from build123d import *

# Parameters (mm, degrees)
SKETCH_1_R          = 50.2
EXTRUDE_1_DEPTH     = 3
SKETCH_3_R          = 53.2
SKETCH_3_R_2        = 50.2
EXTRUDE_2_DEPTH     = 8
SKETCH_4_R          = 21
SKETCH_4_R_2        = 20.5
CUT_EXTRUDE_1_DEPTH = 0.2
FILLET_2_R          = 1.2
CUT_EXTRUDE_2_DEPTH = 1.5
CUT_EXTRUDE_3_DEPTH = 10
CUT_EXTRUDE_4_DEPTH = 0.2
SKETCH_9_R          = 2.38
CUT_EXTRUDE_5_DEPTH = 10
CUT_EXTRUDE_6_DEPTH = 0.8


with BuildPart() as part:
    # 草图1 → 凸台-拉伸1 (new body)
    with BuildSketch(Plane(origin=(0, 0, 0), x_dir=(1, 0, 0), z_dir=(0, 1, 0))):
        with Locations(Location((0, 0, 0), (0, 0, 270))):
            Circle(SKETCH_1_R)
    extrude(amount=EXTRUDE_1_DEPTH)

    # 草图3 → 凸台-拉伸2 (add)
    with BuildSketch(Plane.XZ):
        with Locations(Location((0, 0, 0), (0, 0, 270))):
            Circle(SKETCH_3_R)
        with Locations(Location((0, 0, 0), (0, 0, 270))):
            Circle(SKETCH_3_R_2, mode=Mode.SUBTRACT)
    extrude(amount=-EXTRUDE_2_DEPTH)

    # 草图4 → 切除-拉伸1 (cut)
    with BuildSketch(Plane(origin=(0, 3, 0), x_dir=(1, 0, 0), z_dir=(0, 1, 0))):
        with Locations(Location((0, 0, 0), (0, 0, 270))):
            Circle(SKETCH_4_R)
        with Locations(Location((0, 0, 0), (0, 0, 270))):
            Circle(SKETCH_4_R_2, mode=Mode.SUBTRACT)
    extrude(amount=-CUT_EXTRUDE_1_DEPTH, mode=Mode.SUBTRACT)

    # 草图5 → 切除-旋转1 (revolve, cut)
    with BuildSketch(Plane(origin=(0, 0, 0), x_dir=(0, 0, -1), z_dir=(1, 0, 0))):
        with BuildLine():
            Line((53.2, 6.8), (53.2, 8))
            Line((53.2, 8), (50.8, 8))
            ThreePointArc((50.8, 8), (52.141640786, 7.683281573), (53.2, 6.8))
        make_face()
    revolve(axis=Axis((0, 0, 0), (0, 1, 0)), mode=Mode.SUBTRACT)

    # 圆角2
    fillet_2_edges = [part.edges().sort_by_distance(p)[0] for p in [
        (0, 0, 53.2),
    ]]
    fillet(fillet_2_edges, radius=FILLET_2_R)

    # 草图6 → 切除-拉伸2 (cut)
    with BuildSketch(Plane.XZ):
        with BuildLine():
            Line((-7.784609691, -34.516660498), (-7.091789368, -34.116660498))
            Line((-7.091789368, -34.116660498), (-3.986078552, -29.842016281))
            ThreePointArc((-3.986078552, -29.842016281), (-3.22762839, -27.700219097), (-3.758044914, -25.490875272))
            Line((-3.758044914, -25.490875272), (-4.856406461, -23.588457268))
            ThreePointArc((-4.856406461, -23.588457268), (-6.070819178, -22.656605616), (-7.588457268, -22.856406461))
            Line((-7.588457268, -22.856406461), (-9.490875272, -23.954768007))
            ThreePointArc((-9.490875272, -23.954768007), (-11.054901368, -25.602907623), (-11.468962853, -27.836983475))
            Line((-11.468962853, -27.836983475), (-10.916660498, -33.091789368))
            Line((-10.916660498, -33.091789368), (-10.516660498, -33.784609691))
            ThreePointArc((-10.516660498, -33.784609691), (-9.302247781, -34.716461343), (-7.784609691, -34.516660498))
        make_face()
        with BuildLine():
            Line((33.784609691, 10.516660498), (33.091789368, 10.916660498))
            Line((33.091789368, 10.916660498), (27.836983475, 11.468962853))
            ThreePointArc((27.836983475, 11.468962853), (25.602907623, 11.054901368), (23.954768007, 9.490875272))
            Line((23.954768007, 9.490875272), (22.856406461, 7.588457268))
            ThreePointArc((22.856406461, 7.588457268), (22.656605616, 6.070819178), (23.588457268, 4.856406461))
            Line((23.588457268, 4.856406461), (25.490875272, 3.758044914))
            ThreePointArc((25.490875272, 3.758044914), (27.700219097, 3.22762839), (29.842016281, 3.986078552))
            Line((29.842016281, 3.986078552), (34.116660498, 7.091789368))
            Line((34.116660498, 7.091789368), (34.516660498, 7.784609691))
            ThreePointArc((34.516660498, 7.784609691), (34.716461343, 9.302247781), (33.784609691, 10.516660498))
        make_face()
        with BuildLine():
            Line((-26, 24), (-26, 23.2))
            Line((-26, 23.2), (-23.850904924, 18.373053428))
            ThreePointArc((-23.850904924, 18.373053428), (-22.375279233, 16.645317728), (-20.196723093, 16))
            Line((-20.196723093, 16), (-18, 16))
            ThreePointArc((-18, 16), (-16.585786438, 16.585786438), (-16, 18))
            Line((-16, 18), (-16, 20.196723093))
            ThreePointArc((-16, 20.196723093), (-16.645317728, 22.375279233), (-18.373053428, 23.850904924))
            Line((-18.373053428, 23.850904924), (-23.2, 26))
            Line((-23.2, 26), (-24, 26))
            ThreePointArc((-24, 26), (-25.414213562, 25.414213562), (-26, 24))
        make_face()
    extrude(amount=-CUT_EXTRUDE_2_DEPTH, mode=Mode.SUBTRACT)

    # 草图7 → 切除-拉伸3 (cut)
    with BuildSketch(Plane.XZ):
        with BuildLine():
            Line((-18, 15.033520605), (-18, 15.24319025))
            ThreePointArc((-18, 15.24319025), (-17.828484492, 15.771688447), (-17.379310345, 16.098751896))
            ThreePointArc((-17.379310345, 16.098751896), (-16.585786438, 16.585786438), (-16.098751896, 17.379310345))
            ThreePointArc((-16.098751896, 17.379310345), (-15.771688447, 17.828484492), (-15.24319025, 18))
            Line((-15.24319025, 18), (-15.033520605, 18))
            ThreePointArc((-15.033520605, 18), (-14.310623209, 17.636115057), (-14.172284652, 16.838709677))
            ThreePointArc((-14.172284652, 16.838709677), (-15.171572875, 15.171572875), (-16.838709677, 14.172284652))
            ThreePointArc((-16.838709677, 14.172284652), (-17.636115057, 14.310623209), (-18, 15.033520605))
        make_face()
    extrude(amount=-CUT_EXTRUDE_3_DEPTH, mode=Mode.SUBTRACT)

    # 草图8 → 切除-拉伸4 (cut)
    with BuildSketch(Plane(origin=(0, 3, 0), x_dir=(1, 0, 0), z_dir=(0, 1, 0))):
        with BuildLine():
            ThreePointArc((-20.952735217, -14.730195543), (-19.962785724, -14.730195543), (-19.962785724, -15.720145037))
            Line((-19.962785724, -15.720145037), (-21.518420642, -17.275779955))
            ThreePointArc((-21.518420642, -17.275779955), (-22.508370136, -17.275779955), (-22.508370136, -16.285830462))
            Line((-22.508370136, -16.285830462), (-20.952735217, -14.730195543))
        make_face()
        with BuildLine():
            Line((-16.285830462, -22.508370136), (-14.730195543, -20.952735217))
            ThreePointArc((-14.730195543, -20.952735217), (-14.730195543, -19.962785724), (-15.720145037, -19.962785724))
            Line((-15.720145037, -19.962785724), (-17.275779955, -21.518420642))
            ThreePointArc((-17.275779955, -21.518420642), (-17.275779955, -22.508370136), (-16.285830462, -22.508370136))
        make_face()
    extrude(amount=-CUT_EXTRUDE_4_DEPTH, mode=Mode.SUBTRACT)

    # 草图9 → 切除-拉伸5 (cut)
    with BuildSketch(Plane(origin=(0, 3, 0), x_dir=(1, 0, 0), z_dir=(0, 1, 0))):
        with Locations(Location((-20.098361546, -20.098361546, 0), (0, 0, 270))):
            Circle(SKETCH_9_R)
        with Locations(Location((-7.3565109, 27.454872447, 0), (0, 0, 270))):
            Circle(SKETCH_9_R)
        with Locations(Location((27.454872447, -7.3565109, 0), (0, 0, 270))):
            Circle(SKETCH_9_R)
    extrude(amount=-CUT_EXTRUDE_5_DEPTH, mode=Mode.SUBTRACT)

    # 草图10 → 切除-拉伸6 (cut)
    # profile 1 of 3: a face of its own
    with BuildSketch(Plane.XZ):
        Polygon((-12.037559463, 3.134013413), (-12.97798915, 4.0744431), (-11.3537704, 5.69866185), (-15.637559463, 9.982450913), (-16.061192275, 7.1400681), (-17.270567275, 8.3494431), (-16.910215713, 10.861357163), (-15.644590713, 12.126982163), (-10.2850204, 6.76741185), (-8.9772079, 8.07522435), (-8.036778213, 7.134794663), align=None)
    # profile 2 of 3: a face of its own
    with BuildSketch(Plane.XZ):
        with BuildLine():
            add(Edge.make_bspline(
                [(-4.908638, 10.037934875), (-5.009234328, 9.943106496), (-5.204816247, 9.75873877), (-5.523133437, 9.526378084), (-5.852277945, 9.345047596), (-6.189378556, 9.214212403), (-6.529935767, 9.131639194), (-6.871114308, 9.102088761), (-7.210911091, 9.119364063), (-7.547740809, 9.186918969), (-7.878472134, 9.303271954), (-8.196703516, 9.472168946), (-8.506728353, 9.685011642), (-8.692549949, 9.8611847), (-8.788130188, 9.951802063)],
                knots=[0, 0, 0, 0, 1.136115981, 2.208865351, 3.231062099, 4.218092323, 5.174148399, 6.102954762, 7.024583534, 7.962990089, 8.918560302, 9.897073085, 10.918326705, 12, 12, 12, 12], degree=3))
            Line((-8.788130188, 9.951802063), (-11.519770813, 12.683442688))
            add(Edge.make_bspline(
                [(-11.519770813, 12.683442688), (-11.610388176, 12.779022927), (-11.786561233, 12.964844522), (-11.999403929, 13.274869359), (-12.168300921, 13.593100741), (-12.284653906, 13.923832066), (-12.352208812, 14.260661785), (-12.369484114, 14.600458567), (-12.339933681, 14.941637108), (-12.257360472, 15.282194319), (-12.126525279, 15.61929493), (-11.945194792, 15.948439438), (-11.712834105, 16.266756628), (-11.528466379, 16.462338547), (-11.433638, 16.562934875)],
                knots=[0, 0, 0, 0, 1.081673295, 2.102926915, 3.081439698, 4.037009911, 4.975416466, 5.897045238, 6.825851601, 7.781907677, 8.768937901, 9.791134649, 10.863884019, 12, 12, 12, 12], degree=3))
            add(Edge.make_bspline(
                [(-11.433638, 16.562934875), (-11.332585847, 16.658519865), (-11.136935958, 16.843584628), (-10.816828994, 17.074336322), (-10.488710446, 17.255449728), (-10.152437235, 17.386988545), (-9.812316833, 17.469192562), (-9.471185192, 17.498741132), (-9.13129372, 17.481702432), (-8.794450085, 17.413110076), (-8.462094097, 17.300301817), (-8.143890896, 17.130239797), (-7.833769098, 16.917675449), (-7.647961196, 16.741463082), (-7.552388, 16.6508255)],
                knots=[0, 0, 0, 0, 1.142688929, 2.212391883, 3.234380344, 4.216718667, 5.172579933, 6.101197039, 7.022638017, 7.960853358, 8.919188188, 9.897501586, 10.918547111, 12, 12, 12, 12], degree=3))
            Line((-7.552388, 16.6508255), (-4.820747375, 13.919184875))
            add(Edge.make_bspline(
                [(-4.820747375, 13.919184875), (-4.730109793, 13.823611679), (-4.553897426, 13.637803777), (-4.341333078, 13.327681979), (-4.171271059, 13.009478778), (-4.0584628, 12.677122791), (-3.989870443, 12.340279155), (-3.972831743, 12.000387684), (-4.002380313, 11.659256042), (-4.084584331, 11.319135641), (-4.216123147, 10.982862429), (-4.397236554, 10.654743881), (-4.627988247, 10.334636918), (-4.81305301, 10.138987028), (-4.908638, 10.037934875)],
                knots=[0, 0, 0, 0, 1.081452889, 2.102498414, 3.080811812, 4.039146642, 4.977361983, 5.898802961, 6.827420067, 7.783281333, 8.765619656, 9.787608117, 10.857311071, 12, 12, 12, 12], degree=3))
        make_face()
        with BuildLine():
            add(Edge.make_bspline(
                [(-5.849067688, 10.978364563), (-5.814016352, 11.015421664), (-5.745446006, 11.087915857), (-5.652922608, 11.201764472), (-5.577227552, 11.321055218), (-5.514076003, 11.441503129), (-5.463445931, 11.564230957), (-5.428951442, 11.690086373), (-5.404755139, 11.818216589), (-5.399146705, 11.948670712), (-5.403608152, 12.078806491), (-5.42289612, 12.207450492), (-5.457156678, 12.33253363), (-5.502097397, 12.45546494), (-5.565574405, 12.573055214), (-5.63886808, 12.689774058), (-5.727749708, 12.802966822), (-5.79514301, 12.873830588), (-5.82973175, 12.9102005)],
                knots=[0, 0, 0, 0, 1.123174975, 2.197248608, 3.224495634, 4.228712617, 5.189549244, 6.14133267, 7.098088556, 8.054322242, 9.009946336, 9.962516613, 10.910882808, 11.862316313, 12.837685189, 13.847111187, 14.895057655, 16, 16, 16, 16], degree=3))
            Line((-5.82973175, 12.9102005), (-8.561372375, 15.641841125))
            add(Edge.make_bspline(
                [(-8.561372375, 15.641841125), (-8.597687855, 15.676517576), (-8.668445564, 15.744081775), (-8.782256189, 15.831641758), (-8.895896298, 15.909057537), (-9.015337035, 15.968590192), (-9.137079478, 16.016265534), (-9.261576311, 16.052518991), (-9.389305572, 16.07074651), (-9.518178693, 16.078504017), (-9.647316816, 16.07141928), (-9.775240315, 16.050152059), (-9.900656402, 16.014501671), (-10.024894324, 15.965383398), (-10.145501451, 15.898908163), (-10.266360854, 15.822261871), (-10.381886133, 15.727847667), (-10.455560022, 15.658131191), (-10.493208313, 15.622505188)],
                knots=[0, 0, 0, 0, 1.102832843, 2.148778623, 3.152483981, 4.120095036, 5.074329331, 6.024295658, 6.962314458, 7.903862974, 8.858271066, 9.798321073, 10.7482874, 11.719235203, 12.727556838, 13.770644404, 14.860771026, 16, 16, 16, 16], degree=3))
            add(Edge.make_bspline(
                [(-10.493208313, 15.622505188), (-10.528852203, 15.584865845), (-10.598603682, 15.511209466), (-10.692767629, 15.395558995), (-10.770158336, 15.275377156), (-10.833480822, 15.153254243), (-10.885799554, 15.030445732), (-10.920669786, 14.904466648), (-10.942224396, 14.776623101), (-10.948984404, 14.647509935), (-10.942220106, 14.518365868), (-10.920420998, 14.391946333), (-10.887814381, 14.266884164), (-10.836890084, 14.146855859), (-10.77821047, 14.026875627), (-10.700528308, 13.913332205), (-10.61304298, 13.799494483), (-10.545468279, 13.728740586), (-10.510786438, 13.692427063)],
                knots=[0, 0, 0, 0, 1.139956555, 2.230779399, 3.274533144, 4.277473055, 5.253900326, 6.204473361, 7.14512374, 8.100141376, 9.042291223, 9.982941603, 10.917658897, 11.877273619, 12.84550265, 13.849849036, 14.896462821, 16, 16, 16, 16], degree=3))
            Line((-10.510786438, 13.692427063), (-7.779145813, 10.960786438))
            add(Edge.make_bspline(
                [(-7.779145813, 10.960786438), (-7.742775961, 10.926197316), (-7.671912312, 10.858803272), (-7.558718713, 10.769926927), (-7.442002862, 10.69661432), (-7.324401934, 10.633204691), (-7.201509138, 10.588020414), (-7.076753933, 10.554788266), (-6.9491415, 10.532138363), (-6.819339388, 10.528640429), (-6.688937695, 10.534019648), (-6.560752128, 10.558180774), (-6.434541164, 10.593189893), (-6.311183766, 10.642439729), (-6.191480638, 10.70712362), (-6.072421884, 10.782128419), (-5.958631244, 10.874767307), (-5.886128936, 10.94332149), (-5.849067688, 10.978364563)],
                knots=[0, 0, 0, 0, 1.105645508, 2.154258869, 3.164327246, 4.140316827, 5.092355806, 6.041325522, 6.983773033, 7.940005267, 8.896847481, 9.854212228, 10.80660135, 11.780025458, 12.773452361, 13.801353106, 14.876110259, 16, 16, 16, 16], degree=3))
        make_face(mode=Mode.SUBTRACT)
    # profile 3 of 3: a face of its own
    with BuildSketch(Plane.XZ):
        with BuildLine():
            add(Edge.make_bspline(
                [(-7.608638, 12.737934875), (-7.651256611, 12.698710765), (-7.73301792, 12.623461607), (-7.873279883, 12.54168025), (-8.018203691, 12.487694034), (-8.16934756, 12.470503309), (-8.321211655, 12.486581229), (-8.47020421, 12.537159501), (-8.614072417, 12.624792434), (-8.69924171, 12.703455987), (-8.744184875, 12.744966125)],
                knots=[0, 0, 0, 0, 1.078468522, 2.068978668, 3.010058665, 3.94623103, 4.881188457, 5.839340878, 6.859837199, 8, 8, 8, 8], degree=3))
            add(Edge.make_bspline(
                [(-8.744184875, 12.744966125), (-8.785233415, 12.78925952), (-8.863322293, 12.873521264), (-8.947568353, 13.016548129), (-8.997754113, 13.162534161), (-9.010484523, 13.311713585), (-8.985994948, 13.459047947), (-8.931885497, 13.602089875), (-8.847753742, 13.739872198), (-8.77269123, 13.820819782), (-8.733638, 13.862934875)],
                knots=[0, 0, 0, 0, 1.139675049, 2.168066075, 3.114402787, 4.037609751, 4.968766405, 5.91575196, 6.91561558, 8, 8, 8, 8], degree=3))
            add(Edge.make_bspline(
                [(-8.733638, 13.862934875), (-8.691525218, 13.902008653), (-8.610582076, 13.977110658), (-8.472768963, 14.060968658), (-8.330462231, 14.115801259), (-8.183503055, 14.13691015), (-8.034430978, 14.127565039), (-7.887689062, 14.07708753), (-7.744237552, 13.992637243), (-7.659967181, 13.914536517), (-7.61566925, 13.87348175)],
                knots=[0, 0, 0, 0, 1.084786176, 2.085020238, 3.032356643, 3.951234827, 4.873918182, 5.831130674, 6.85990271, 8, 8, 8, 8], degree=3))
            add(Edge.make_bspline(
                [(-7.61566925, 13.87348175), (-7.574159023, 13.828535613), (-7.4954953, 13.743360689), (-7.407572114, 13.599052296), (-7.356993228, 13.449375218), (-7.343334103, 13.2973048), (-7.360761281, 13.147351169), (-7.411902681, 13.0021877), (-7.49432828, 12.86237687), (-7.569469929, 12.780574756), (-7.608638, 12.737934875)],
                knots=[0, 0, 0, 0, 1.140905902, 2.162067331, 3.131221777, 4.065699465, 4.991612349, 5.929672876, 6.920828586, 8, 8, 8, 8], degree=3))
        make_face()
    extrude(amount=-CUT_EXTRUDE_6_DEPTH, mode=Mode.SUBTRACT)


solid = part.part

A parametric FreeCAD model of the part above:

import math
import FreeCAD as App
import Part
import Sketcher

V = App.Vector
Q = App.Units.Quantity


def edges_at(feature, points):
    """Names of the edges that pass closest to the given points."""
    edges = feature.Shape.Edges
    near = lambda p: min(range(len(edges)), key=lambda i: edges[i].distToShape(Part.Vertex(*p))[0])
    return sorted({f"Edge{near(p) + 1}" for p in points})


def add_polygon(sketch, points):
    """Adds a closed chain of lines whose ends are joined by coincident constraints."""
    first, n = sketch.GeometryCount, len(points)
    for a, b in zip(points, points[1:] + points[:1]):
        sketch.addGeometry(Part.LineSegment(App.Vector(*a, 0), App.Vector(*b, 0)), False)
    for i in range(n):
        sketch.addConstraint(Sketcher.Constraint("Coincident", first + i, 2, first + (i + 1) % n, 1))

doc = App.newDocument("Part")
body = doc.addObject("PartDesign::Body", "Body")

# Sketch on XZ plane
sketch1 = body.newObject("Sketcher::SketchObject", "Sketch")
sketch1.AttachmentSupport = (doc.getObject("XZ_Plane"), [""])
sketch1.MapMode = "FlatFace"
sketch1.addGeometry(Part.Circle(V(0, 0, 0), V(0, 0, 1), 50), False)
sketch1.addConstraint(Sketcher.Constraint("Coincident", 0, 3, -1, 1))
sketch1.addConstraint(Sketcher.Constraint("Diameter", 0, 100.4))
pad1 = body.newObject("PartDesign::Pad", "Pad")
pad1.Profile = sketch1
pad1.Length = 3
pad1.Reversed = True

# Sketch on XZ plane
sketch2 = body.newObject("Sketcher::SketchObject", "Sketch001")
sketch2.AttachmentSupport = (doc.getObject("XZ_Plane"), [""])
sketch2.MapMode = "FlatFace"
sketch2.addGeometry(Part.Circle(V(0, 0, 0), V(0, 0, 1), 53), False)
sketch2.addGeometry(Part.Circle(V(0, 0, 0), V(0, 0, 1), 50), False)
sketch2.addConstraint(Sketcher.Constraint("Coincident", 0, 3, -1, 1))
sketch2.addConstraint(Sketcher.Constraint("Coincident", 1, 3, -1, 1))
sketch2.addConstraint(Sketcher.Constraint("Diameter", 0, 106.4))
sketch2.addConstraint(Sketcher.Constraint("Diameter", 1, 100.4))
pad2 = body.newObject("PartDesign::Pad", "Pad001")
pad2.Profile = sketch2
pad2.Length = 8
pad2.Reversed = True

# Sketch on XZ plane
sketch3 = body.newObject("Sketcher::SketchObject", "Sketch002")
sketch3.AttachmentSupport = (doc.getObject("XZ_Plane"), [""])
sketch3.MapMode = "FlatFace"
sketch3.AttachmentOffset = App.Placement(V(0, 0, -3), App.Rotation())
sketch3.addGeometry(Part.Circle(V(0, 0, 0), V(0, 0, 1), 21), False)
sketch3.addGeometry(Part.Circle(V(0, 0, 0), V(0, 0, 1), 20), False)
sketch3.addConstraint(Sketcher.Constraint("Coincident", 0, 3, -1, 1))
sketch3.addConstraint(Sketcher.Constraint("Coincident", 1, 3, -1, 1))
sketch3.addConstraint(Sketcher.Constraint("Diameter", 0, 42.0))
sketch3.addConstraint(Sketcher.Constraint("Diameter", 1, 41.0))
pocket1 = body.newObject("PartDesign::Pocket", "Pocket")
pocket1.Profile = sketch3
pocket1.Length = 0.2
pocket1.Reversed = True

# Sketch on YZ plane
sketch4 = body.newObject("Sketcher::SketchObject", "Sketch003")
sketch4.AttachmentSupport = (doc.getObject("YZ_Plane"), [""])
sketch4.MapMode = "FlatFace"
sketch4.addGeometry(Part.LineSegment(V(6.8, -53.2, 0), V(8, -53.2, 0)), False)
sketch4.addGeometry(Part.LineSegment(V(8, -53.2, 0), V(8, -50.8, 0)), False)
sketch4.addGeometry(Part.ArcOfCircle(Part.Circle(V(5, -50.8, 0), V(0, 0, 1), 3), math.radians(-53), math.radians(0)), False)
sketch4.addConstraint(Sketcher.Constraint("Coincident", 0, 2, 1, 1))
sketch4.addConstraint(Sketcher.Constraint("Tangent", 1, 2, 2, 2))
sketch4.addConstraint(Sketcher.Constraint("Coincident", 2, 1, 0, 1))
sketch4.addConstraint(Sketcher.Constraint("Horizontal", 0))
sketch4.addConstraint(Sketcher.Constraint("Vertical", 1))
sketch4.addConstraint(Sketcher.Constraint("Radius", 2, 3.0))
sketch4.addConstraint(Sketcher.Constraint("DistanceX", 0, 1, 0, 2, 1.2))
sketch4.addConstraint(Sketcher.Constraint("DistanceX", -1, 1, 2, 3, 5.0))
sketch4.addConstraint(Sketcher.Constraint("DistanceY", 2, 3, -1, 1, 50.8))
groove = body.newObject("PartDesign::Groove", "Groove")
groove.Profile = sketch4
groove.ReferenceAxis = (sketch4, ["H_Axis"])
groove.Angle = 360
doc.recompute()

fillet = body.newObject("PartDesign::Fillet", "Fillet")
fillet.Base = (groove, edges_at(groove, [(0, 0, 53.2)]))
fillet.Radius = 1.2

# Sketch on XZ plane
sketch5 = body.newObject("Sketcher::SketchObject", "Sketch004")
sketch5.AttachmentSupport = (doc.getObject("XZ_Plane"), [""])
sketch5.MapMode = "FlatFace"
sketch5.addGeometry(Part.LineSegment(V(-7.8, -34.5, 0), V(-7.1, -34.1, 0)), False)
sketch5.addGeometry(Part.LineSegment(V(-7.1, -34.1, 0), V(-4, -29.8, 0)), False)
sketch5.addGeometry(Part.ArcOfCircle(Part.Circle(V(-7.2, -27.5, 0), V(0, 0, 1), 4), math.radians(-36), math.radians(30)), False)
sketch5.addGeometry(Part.LineSegment(V(-3.8, -25.5, 0), V(-4.9, -23.6, 0)), False)
sketch5.addGeometry(Part.ArcOfCircle(Part.Circle(V(-6.6, -24.6, 0), V(0, 0, 1), 2), math.radians(30), math.radians(120)), False)
sketch5.addGeometry(Part.LineSegment(V(-7.6, -22.9, 0), V(-9.5, -24, 0)), False)
sketch5.addGeometry(Part.ArcOfCircle(Part.Circle(V(-7.5, -27.4, 0), V(0, 0, 1), 4), math.radians(120), math.radians(186)), False)
sketch5.addGeometry(Part.LineSegment(V(-11.5, -27.8, 0), V(-10.9, -33.1, 0)), False)
sketch5.addGeometry(Part.LineSegment(V(-10.9, -33.1, 0), V(-10.5, -33.8, 0)), False)
sketch5.addGeometry(Part.ArcOfCircle(Part.Circle(V(-8.8, -32.8, 0), V(0, 0, 1), 2), math.radians(-150), math.radians(-60)), False)
sketch5.addGeometry(Part.LineSegment(V(33.8, 10.5, 0), V(33.1, 10.9, 0)), False)
sketch5.addGeometry(Part.LineSegment(V(33.1, 10.9, 0), V(27.8, 11.5, 0)), False)
sketch5.addGeometry(Part.ArcOfCircle(Part.Circle(V(27.4, 7.5, 0), V(0, 0, 1), 4), math.radians(84), math.radians(150)), False)
sketch5.addGeometry(Part.LineSegment(V(24, 9.5, 0), V(22.9, 7.6, 0)), False)
sketch5.addGeometry(Part.ArcOfCircle(Part.Circle(V(24.6, 6.6, 0), V(0, 0, 1), 2), math.radians(150), math.radians(240)), False)
sketch5.addGeometry(Part.LineSegment(V(23.6, 4.9, 0), V(25.5, 3.8, 0)), False)
sketch5.addGeometry(Part.ArcOfCircle(Part.Circle(V(27.5, 7.2, 0), V(0, 0, 1), 4), math.radians(-120), math.radians(-54)), False)
sketch5.addGeometry(Part.LineSegment(V(29.8, 4, 0), V(34.1, 7.1, 0)), False)
sketch5.addGeometry(Part.LineSegment(V(34.1, 7.1, 0), V(34.5, 7.8, 0)), False)
sketch5.addGeometry(Part.ArcOfCircle(Part.Circle(V(32.8, 8.8, 0), V(0, 0, 1), 2), math.radians(-30), math.radians(60)), False)
sketch5.addGeometry(Part.LineSegment(V(-26, 24, 0), V(-26, 23.2, 0)), False)
sketch5.addGeometry(Part.LineSegment(V(-26, 23.2, 0), V(-23.9, 18.4, 0)), False)
sketch5.addGeometry(Part.ArcOfCircle(Part.Circle(V(-20.2, 20, 0), V(0, 0, 1), 4), math.radians(-156), math.radians(-90)), False)
sketch5.addGeometry(Part.LineSegment(V(-20.2, 16, 0), V(-18, 16, 0)), False)
sketch5.addGeometry(Part.ArcOfCircle(Part.Circle(V(-18, 18, 0), V(0, 0, 1), 2), math.radians(-90), math.radians(0)), False)
sketch5.addGeometry(Part.LineSegment(V(-16, 18, 0), V(-16, 20.2, 0)), False)
sketch5.addGeometry(Part.ArcOfCircle(Part.Circle(V(-20, 20.2, 0), V(0, 0, 1), 4), math.radians(0), math.radians(66)), False)
sketch5.addGeometry(Part.LineSegment(V(-18.4, 23.9, 0), V(-23.2, 26, 0)), False)
sketch5.addGeometry(Part.LineSegment(V(-23.2, 26, 0), V(-24, 26, 0)), False)
sketch5.addGeometry(Part.ArcOfCircle(Part.Circle(V(-24, 24, 0), V(0, 0, 1), 2), math.radians(90), math.radians(180)), False)
sketch5.addConstraint(Sketcher.Constraint("Coincident", 0, 2, 1, 1))
sketch5.addConstraint(Sketcher.Constraint("Tangent", 1, 2, 2, 1))
sketch5.addConstraint(Sketcher.Constraint("Tangent", 2, 2, 3, 1))
sketch5.addConstraint(Sketcher.Constraint("Tangent", 3, 2, 4, 1))
sketch5.addConstraint(Sketcher.Constraint("Tangent", 4, 2, 5, 1))
sketch5.addConstraint(Sketcher.Constraint("Tangent", 5, 2, 6, 1))
sketch5.addConstraint(Sketcher.Constraint("Tangent", 6, 2, 7, 1))
sketch5.addConstraint(Sketcher.Constraint("Coincident", 7, 2, 8, 1))
sketch5.addConstraint(Sketcher.Constraint("Tangent", 8, 2, 9, 1))
sketch5.addConstraint(Sketcher.Constraint("Tangent", 9, 2, 0, 1))
sketch5.addConstraint(Sketcher.Constraint("Coincident", 10, 2, 11, 1))
sketch5.addConstraint(Sketcher.Constraint("Tangent", 11, 2, 12, 1))
sketch5.addConstraint(Sketcher.Constraint("Tangent", 12, 2, 13, 1))
sketch5.addConstraint(Sketcher.Constraint("Tangent", 13, 2, 14, 1))
sketch5.addConstraint(Sketcher.Constraint("Tangent", 14, 2, 15, 1))
sketch5.addConstraint(Sketcher.Constraint("Tangent", 15, 2, 16, 1))
sketch5.addConstraint(Sketcher.Constraint("Tangent", 16, 2, 17, 1))
sketch5.addConstraint(Sketcher.Constraint("Coincident", 17, 2, 18, 1))
sketch5.addConstraint(Sketcher.Constraint("Tangent", 18, 2, 19, 1))
sketch5.addConstraint(Sketcher.Constraint("Tangent", 19, 2, 10, 1))
sketch5.addConstraint(Sketcher.Constraint("Coincident", 20, 2, 21, 1))
sketch5.addConstraint(Sketcher.Constraint("Tangent", 21, 2, 22, 1))
sketch5.addConstraint(Sketcher.Constraint("Tangent", 22, 2, 23, 1))
sketch5.addConstraint(Sketcher.Constraint("Tangent", 23, 2, 24, 1))
sketch5.addConstraint(Sketcher.Constraint("Tangent", 24, 2, 25, 1))
sketch5.addConstraint(Sketcher.Constraint("Tangent", 25, 2, 26, 1))
sketch5.addConstraint(Sketcher.Constraint("Tangent", 26, 2, 27, 1))
sketch5.addConstraint(Sketcher.Constraint("Coincident", 27, 2, 28, 1))
sketch5.addConstraint(Sketcher.Constraint("Tangent", 28, 2, 29, 1))
sketch5.addConstraint(Sketcher.Constraint("Tangent", 29, 2, 20, 1))
sketch5.addConstraint(Sketcher.Constraint("Vertical", 20))
sketch5.addConstraint(Sketcher.Constraint("Horizontal", 23))
sketch5.addConstraint(Sketcher.Constraint("Vertical", 25))
sketch5.addConstraint(Sketcher.Constraint("Horizontal", 28))
sketch5.addConstraint(Sketcher.Constraint("Equal", 2, 6))
sketch5.addConstraint(Sketcher.Constraint("Equal", 4, 9))
sketch5.addConstraint(Sketcher.Constraint("Equal", 6, 12))
sketch5.addConstraint(Sketcher.Constraint("Equal", 9, 14))
sketch5.addConstraint(Sketcher.Constraint("Equal", 12, 16))
sketch5.addConstraint(Sketcher.Constraint("Equal", 14, 19))
sketch5.addConstraint(Sketcher.Constraint("Equal", 16, 22))
sketch5.addConstraint(Sketcher.Constraint("Equal", 19, 24))
sketch5.addConstraint(Sketcher.Constraint("Equal", 22, 26))
sketch5.addConstraint(Sketcher.Constraint("Equal", 24, 29))
sketch5.addConstraint(Sketcher.Constraint("Perpendicular", 0, 3))
sketch5.addConstraint(Sketcher.Constraint("Perpendicular", 3, 5))
sketch5.addConstraint(Sketcher.Constraint("Perpendicular", 5, 8))
sketch5.addConstraint(Sketcher.Constraint("Perpendicular", 10, 13))
sketch5.addConstraint(Sketcher.Constraint("Perpendicular", 13, 15))
sketch5.addConstraint(Sketcher.Constraint("Perpendicular", 15, 18))
sketch5.addConstraint(Sketcher.Constraint("Equal", 28, 20))
sketch5.addConstraint(Sketcher.Constraint("Equal", 23, 25))
sketch5.addConstraint(Sketcher.Constraint("Equal", 3, 5))
sketch5.addConstraint(Sketcher.Constraint("Equal", 1, 7))
sketch5.addConstraint(Sketcher.Constraint("Equal", 0, 8))
sketch5.addConstraint(Sketcher.Constraint("Equal", 8, 10))
sketch5.addConstraint(Sketcher.Constraint("Equal", 7, 11))
sketch5.addConstraint(Sketcher.Constraint("Equal", 5, 13))
sketch5.addConstraint(Sketcher.Constraint("Equal", 13, 15))
sketch5.addConstraint(Sketcher.Constraint("Equal", 11, 17))
sketch5.addConstraint(Sketcher.Constraint("Equal", 10, 18))
sketch5.addConstraint(Sketcher.Constraint("Equal", 17, 21))
sketch5.addConstraint(Sketcher.Constraint("Equal", 21, 27))
sketch5.addConstraint(Sketcher.Constraint("Radius", 2, 4.0))
sketch5.addConstraint(Sketcher.Constraint("Radius", 4, 2.0))
sketch5.addConstraint(Sketcher.Constraint("Angle", 0, Q("30 deg")))
sketch5.addConstraint(Sketcher.Constraint("Angle", 1, Q("54 deg")))
sketch5.addConstraint(Sketcher.Constraint("Angle", 10, Q("150 deg")))
sketch5.addConstraint(Sketcher.Constraint("Angle", 21, Q("-66 deg")))
sketch5.addConstraint(Sketcher.Constraint("DistanceX", 28, 2, 28, 1, 0.8))
sketch5.addConstraint(Sketcher.Constraint("DistanceY", -1, 1, 22, 3, 20.0))
sketch5.addConstraint(Sketcher.Constraint("DistanceX", 24, 3, -1, 1, 18.0))
sketch5.addConstraint(Sketcher.Constraint("DistanceX", 29, 3, -1, 1, 24.0))
sketch5.addConstraint(Sketcher.Constraint("Distance", 0, 0.8))
sketch5.addConstraint(Sketcher.Constraint("DistanceY", 6, 3, -1, 1, 27.41887))
sketch5.addConstraint(Sketcher.Constraint("DistanceX", 9, 3, -1, 1, 8.78461))
sketch5.addConstraint(Sketcher.Constraint("DistanceX", -1, 1, 12, 3, 27.41887))
sketch5.addConstraint(Sketcher.Constraint("DistanceY", -1, 1, 19, 3, 8.78461))
pocket2 = body.newObject("PartDesign::Pocket", "Pocket001")
pocket2.Profile = sketch5
pocket2.Length = 1.5

# Sketch on XZ plane
sketch6 = body.newObject("Sketcher::SketchObject", "Sketch005")
sketch6.AttachmentSupport = (doc.getObject("XZ_Plane"), [""])
sketch6.MapMode = "FlatFace"
sketch6.addGeometry(Part.LineSegment(V(-18, 15.24, 0), V(-18, 15.03, 0)), False)
sketch6.addGeometry(Part.ArcOfCircle(Part.Circle(V(-17.1, 15.03, 0), V(0, 0, 1), 0.9), math.radians(180), math.radians(287)), False)
sketch6.addGeometry(Part.ArcOfCircle(Part.Circle(V(-18, 18, 0), V(0, 0, 1), 4), math.radians(-73), math.radians(-17)), False)
sketch6.addGeometry(Part.ArcOfCircle(Part.Circle(V(-15.03, 17.1, 0), V(0, 0, 1), 0.9), math.radians(-17), math.radians(90)), False)
sketch6.addGeometry(Part.LineSegment(V(-15.03, 18, 0), V(-15.24, 18, 0)), False)
sketch6.addGeometry(Part.ArcOfCircle(Part.Circle(V(-15.24, 17.1, 0), V(0, 0, 1), 0.9), math.radians(90), math.radians(162)), False)
sketch6.addGeometry(Part.ArcOfCircle(Part.Circle(V(-18, 18, 0), V(0, 0, 1), 2), math.radians(-72), math.radians(-18)), False)
sketch6.addGeometry(Part.ArcOfCircle(Part.Circle(V(-17.1, 15.24, 0), V(0, 0, 1), 0.9), math.radians(108), math.radians(180)), False)
sketch6.addConstraint(Sketcher.Constraint("Tangent", 0, 2, 1, 1))
sketch6.addConstraint(Sketcher.Constraint("Tangent", 1, 2, 2, 1))
sketch6.addConstraint(Sketcher.Constraint("Tangent", 2, 2, 3, 1))
sketch6.addConstraint(Sketcher.Constraint("Tangent", 3, 2, 4, 1))
sketch6.addConstraint(Sketcher.Constraint("Tangent", 4, 2, 5, 1))
sketch6.addConstraint(Sketcher.Constraint("Tangent", 5, 2, 6, 2))
sketch6.addConstraint(Sketcher.Constraint("Tangent", 6, 1, 7, 1))
sketch6.addConstraint(Sketcher.Constraint("Tangent", 7, 2, 0, 1))
sketch6.addConstraint(Sketcher.Constraint("Vertical", 0))
sketch6.addConstraint(Sketcher.Constraint("Horizontal", 4))
sketch6.addConstraint(Sketcher.Constraint("Coincident", 6, 3, 2, 3))
sketch6.addConstraint(Sketcher.Constraint("Equal", 1, 3))
sketch6.addConstraint(Sketcher.Constraint("Equal", 3, 5))
sketch6.addConstraint(Sketcher.Constraint("Equal", 5, 7))
sketch6.addConstraint(Sketcher.Constraint("Horizontal", 6, 3, 3, 2))
sketch6.addConstraint(Sketcher.Constraint("Vertical", 6, 3, 0, 2))
sketch6.addConstraint(Sketcher.Constraint("Radius", 2, 4.0))
sketch6.addConstraint(Sketcher.Constraint("Radius", 6, 2.0))
sketch6.addConstraint(Sketcher.Constraint("Radius", 1, 0.9))
sketch6.addConstraint(Sketcher.Constraint("DistanceX", 2, 3, -1, 1, 18.0))
sketch6.addConstraint(Sketcher.Constraint("DistanceY", -1, 1, 2, 3, 18.0))
pocket3 = body.newObject("PartDesign::Pocket", "Pocket002")
pocket3.Profile = sketch6
pocket3.Length = 10

# Sketch on XZ plane
sketch7 = body.newObject("Sketcher::SketchObject", "Sketch006")
sketch7.AttachmentSupport = (doc.getObject("XZ_Plane"), [""])
sketch7.MapMode = "FlatFace"
sketch7.AttachmentOffset = App.Placement(V(0, 0, -3), App.Rotation())
sketch7.addGeometry(Part.ArcOfCircle(Part.Circle(V(-20.5, 15.2, 0), V(0, 0, 1), 0.7), math.radians(-135), math.radians(45)), False)
sketch7.addGeometry(Part.LineSegment(V(-21, 14.7, 0), V(-22.5, 16.3, 0)), False)
sketch7.addGeometry(Part.ArcOfCircle(Part.Circle(V(-22, 16.8, 0), V(0, 0, 1), 0.7), math.radians(45), math.radians(225)), False)
sketch7.addGeometry(Part.LineSegment(V(-21.5, 17.3, 0), V(-20, 15.7, 0)), False)
sketch7.addGeometry(Part.LineSegment(V(-16.3, 22.5, 0), V(-14.7, 21, 0)), False)
sketch7.addGeometry(Part.ArcOfCircle(Part.Circle(V(-15.2, 20.5, 0), V(0, 0, 1), 0.7), math.radians(-135), math.radians(45)), False)
sketch7.addGeometry(Part.LineSegment(V(-15.7, 20, 0), V(-17.3, 21.5, 0)), False)
sketch7.addGeometry(Part.ArcOfCircle(Part.Circle(V(-16.8, 22, 0), V(0, 0, 1), 0.7), math.radians(45), math.radians(225)), False)
sketch7.addConstraint(Sketcher.Constraint("Tangent", 0, 1, 1, 1))
sketch7.addConstraint(Sketcher.Constraint("Tangent", 1, 2, 2, 2))
sketch7.addConstraint(Sketcher.Constraint("Tangent", 2, 1, 3, 1))
sketch7.addConstraint(Sketcher.Constraint("Tangent", 3, 2, 0, 2))
sketch7.addConstraint(Sketcher.Constraint("Tangent", 4, 2, 5, 2))
sketch7.addConstraint(Sketcher.Constraint("Tangent", 5, 1, 6, 1))
sketch7.addConstraint(Sketcher.Constraint("Tangent", 6, 2, 7, 2))
sketch7.addConstraint(Sketcher.Constraint("Tangent", 7, 1, 4, 1))
sketch7.addConstraint(Sketcher.Constraint("Equal", 0, 2))
sketch7.addConstraint(Sketcher.Constraint("Equal", 2, 5))
sketch7.addConstraint(Sketcher.Constraint("Equal", 5, 7))
sketch7.addConstraint(Sketcher.Constraint("Parallel", 3, 4))
sketch7.addConstraint(Sketcher.Constraint("Equal", 3, 4))
sketch7.addConstraint(Sketcher.Constraint("Radius", 0, 0.7))
sketch7.addConstraint(Sketcher.Constraint("Angle", 1, Q("135 deg")))
sketch7.addConstraint(Sketcher.Constraint("Distance", 1, 2.2))
sketch7.addConstraint(Sketcher.Constraint("DistanceY", 0, 1, 7, 3, 7.2832))
sketch7.addConstraint(Sketcher.Constraint("DistanceX", 1, 2, 5, 3, 7.2832))
sketch7.addConstraint(Sketcher.Constraint("DistanceX", 0, 3, -1, 1, 20.45776))
sketch7.addConstraint(Sketcher.Constraint("DistanceY", -1, 1, 0, 3, 15.22517))
pocket4 = body.newObject("PartDesign::Pocket", "Pocket003")
pocket4.Profile = sketch7
pocket4.Length = 0.2
pocket4.Reversed = True

# Sketch on XZ plane
sketch8 = body.newObject("Sketcher::SketchObject", "Sketch007")
sketch8.AttachmentSupport = (doc.getObject("XZ_Plane"), [""])
sketch8.MapMode = "FlatFace"
sketch8.AttachmentOffset = App.Placement(V(0, 0, -3), App.Rotation())
sketch8.addGeometry(Part.Circle(V(-20.1, 20.1, 0), V(0, 0, 1), 2.4), False)
sketch8.addGeometry(Part.Circle(V(-7.4, -27.5, 0), V(0, 0, 1), 2.4), False)
sketch8.addGeometry(Part.Circle(V(27.5, 7.4, 0), V(0, 0, 1), 2.4), False)
sketch8.addConstraint(Sketcher.Constraint("Equal", 0, 1))
sketch8.addConstraint(Sketcher.Constraint("Equal", 1, 2))
sketch8.addConstraint(Sketcher.Constraint("Diameter", 0, 4.76))
sketch8.addConstraint(Sketcher.Constraint("DistanceX", 0, 3, -1, 1, 20.098362))
sketch8.addConstraint(Sketcher.Constraint("DistanceY", -1, 1, 0, 3, 20.098362))
sketch8.addConstraint(Sketcher.Constraint("DistanceX", 1, 3, -1, 1, 7.356511))
sketch8.addConstraint(Sketcher.Constraint("DistanceY", -1, 1, 2, 3, 7.356511))
sketch8.addConstraint(Sketcher.Constraint("DistanceY", 1, 3, -1, 1, 27.454872))
sketch8.addConstraint(Sketcher.Constraint("DistanceX", -1, 1, 2, 3, 27.454872))
pocket5 = body.newObject("PartDesign::Pocket", "Pocket004")
pocket5.Profile = sketch8
pocket5.Length = 10
pocket5.Reversed = True

# Sketch on XZ plane
sketch9 = body.newObject("Sketcher::SketchObject", "Sketch008")
sketch9.AttachmentSupport = (doc.getObject("XZ_Plane"), [""])
sketch9.MapMode = "FlatFace"
add_polygon(sketch9, [(-12.977989, 4.074443), (-12.037559, 3.134013), (-8.036778, 7.134795), (-8.977208, 8.075224), (-10.28502, 6.767412), (-15.644591, 12.126982), (-16.910216, 10.861357), (-17.270567, 8.349443), (-16.061192, 7.140068), (-15.637559, 9.982451), (-11.35377, 5.698662)])  # lines 0-10
sketch9.addGeometry(Part.BSplineCurve([V(-4.908638, 10.037935, 0), V(-5.009234, 9.943106, 0), V(-5.204816, 9.758739, 0), V(-5.523133, 9.526378, 0), V(-5.852278, 9.345048, 0), V(-6.189379, 9.214212, 0), V(-6.529936, 9.131639, 0), V(-6.871114, 9.102089, 0), V(-7.210911, 9.119364, 0), V(-7.547741, 9.186919, 0), V(-7.878472, 9.303272, 0), V(-8.196704, 9.472169, 0), V(-8.506728, 9.685012, 0), V(-8.69255, 9.861185, 0), V(-8.78813, 9.951802, 0)], [4, 1, 1, 1, 1, 1, 1, 1, 1, 1, 1, 1, 4], [0, 1.136115981, 2.208865351, 3.231062099, 4.218092323, 5.174148399, 6.102954762, 7.024583534, 7.962990089, 8.918560302, 9.897073085, 10.918326705, 12], False, 3, [1, 1, 1, 1, 1, 1, 1, 1, 1, 1, 1, 1, 1, 1, 1], False), False)  # 11
sketch9.addGeometry(Part.BSplineCurve([V(-4.820747, 13.919185, 0), V(-4.73011, 13.823612, 0), V(-4.553897, 13.637804, 0), V(-4.341333, 13.327682, 0), V(-4.171271, 13.009479, 0), V(-4.058463, 12.677123, 0), V(-3.98987, 12.340279, 0), V(-3.972832, 12.000388, 0), V(-4.00238, 11.659256, 0), V(-4.084584, 11.319136, 0), V(-4.216123, 10.982862, 0), V(-4.397237, 10.654744, 0), V(-4.627988, 10.334637, 0), V(-4.813053, 10.138987, 0), V(-4.908638, 10.037935, 0)], [4, 1, 1, 1, 1, 1, 1, 1, 1, 1, 1, 1, 4], [0, 1.081452889, 2.102498414, 3.080811812, 4.039146642, 4.977361983, 5.898802961, 6.827420067, 7.783281333, 8.765619656, 9.787608117, 10.857311071, 12], False, 3, [1, 1, 1, 1, 1, 1, 1, 1, 1, 1, 1, 1, 1, 1, 1], False), False)  # 12
sketch9.addGeometry(Part.LineSegment(V(-4.820747, 13.919185, 0), V(-7.552388, 16.650825, 0)), False)  # 13
sketch9.addGeometry(Part.BSplineCurve([V(-11.433638, 16.562935, 0), V(-11.332586, 16.65852, 0), V(-11.136936, 16.843585, 0), V(-10.816829, 17.074336, 0), V(-10.48871, 17.25545, 0), V(-10.152437, 17.386989, 0), V(-9.812317, 17.469193, 0), V(-9.471185, 17.498741, 0), V(-9.131294, 17.481702, 0), V(-8.79445, 17.41311, 0), V(-8.462094, 17.300302, 0), V(-8.143891, 17.13024, 0), V(-7.833769, 16.917675, 0), V(-7.647961, 16.741463, 0), V(-7.552388, 16.650825, 0)], [4, 1, 1, 1, 1, 1, 1, 1, 1, 1, 1, 1, 4], [0, 1.142688929, 2.212391883, 3.234380344, 4.216718667, 5.172579933, 6.101197039, 7.022638017, 7.960853358, 8.919188188, 9.897501586, 10.918547111, 12], False, 3, [1, 1, 1, 1, 1, 1, 1, 1, 1, 1, 1, 1, 1, 1, 1], False), False)  # 14
sketch9.addGeometry(Part.BSplineCurve([V(-11.519771, 12.683443, 0), V(-11.610388, 12.779023, 0), V(-11.786561, 12.964845, 0), V(-11.999404, 13.274869, 0), V(-12.168301, 13.593101, 0), V(-12.284654, 13.923832, 0), V(-12.352209, 14.260662, 0), V(-12.369484, 14.600459, 0), V(-12.339934, 14.941637, 0), V(-12.25736, 15.282194, 0), V(-12.126525, 15.619295, 0), V(-11.945195, 15.948439, 0), V(-11.712834, 16.266757, 0), V(-11.528466, 16.462339, 0), V(-11.433638, 16.562935, 0)], [4, 1, 1, 1, 1, 1, 1, 1, 1, 1, 1, 1, 4], [0, 1.081673295, 2.102926915, 3.081439698, 4.037009911, 4.975416466, 5.897045238, 6.825851601, 7.781907677, 8.768937901, 9.791134649, 10.863884019, 12], False, 3, [1, 1, 1, 1, 1, 1, 1, 1, 1, 1, 1, 1, 1, 1, 1], False), False)  # 15
sketch9.addGeometry(Part.LineSegment(V(-11.519771, 12.683443, 0), V(-8.78813, 9.951802, 0)), False)  # 16
sketch9.addGeometry(Part.BSplineCurve([V(-7.779146, 10.960786, 0), V(-7.742776, 10.926197, 0), V(-7.671912, 10.858803, 0), V(-7.558719, 10.769927, 0), V(-7.442003, 10.696614, 0), V(-7.324402, 10.633205, 0), V(-7.201509, 10.58802, 0), V(-7.076754, 10.554788, 0), V(-6.949141, 10.532138, 0), V(-6.819339, 10.52864, 0), V(-6.688938, 10.53402, 0), V(-6.560752, 10.558181, 0), V(-6.434541, 10.59319, 0), V(-6.311184, 10.64244, 0), V(-6.191481, 10.707124, 0), V(-6.072422, 10.782128, 0), V(-5.958631, 10.874767, 0), V(-5.886129, 10.943321, 0), V(-5.849068, 10.978365, 0)], [4, 1, 1, 1, 1, 1, 1, 1, 1, 1, 1, 1, 1, 1, 1, 1, 4], [0, 1.105645508, 2.154258869, 3.164327246, 4.140316827, 5.092355806, 6.041325522, 6.983773033, 7.940005267, 8.896847481, 9.854212228, 10.80660135, 11.780025458, 12.773452361, 13.801353106, 14.876110259, 16], False, 3, [1, 1, 1, 1, 1, 1, 1, 1, 1, 1, 1, 1, 1, 1, 1, 1, 1, 1, 1], False), False)  # 17
sketch9.addGeometry(Part.LineSegment(V(-7.779146, 10.960786, 0), V(-10.510786, 13.692427, 0)), False)  # 18
sketch9.addGeometry(Part.BSplineCurve([V(-10.493208, 15.622505, 0), V(-10.528852, 15.584866, 0), V(-10.598604, 15.511209, 0), V(-10.692768, 15.395559, 0), V(-10.770158, 15.275377, 0), V(-10.833481, 15.153254, 0), V(-10.8858, 15.030446, 0), V(-10.92067, 14.904467, 0), V(-10.942224, 14.776623, 0), V(-10.948984, 14.64751, 0), V(-10.94222, 14.518366, 0), V(-10.920421, 14.391946, 0), V(-10.887814, 14.266884, 0), V(-10.83689, 14.146856, 0), V(-10.77821, 14.026876, 0), V(-10.700528, 13.913332, 0), V(-10.613043, 13.799494, 0), V(-10.545468, 13.728741, 0), V(-10.510786, 13.692427, 0)], [4, 1, 1, 1, 1, 1, 1, 1, 1, 1, 1, 1, 1, 1, 1, 1, 4], [0, 1.139956555, 2.230779399, 3.274533144, 4.277473055, 5.253900326, 6.204473361, 7.14512374, 8.100141376, 9.042291223, 9.982941603, 10.917658897, 11.877273619, 12.84550265, 13.849849036, 14.896462821, 16], False, 3, [1, 1, 1, 1, 1, 1, 1, 1, 1, 1, 1, 1, 1, 1, 1, 1, 1, 1, 1], False), False)  # 19
sketch9.addGeometry(Part.BSplineCurve([V(-8.561372, 15.641841, 0), V(-8.597688, 15.676518, 0), V(-8.668446, 15.744082, 0), V(-8.782256, 15.831642, 0), V(-8.895896, 15.909058, 0), V(-9.015337, 15.96859, 0), V(-9.137079, 16.016266, 0), V(-9.261576, 16.052519, 0), V(-9.389306, 16.070747, 0), V(-9.518179, 16.078504, 0), V(-9.647317, 16.071419, 0), V(-9.77524, 16.050152, 0), V(-9.900656, 16.014502, 0), V(-10.024894, 15.965383, 0), V(-10.145501, 15.898908, 0), V(-10.266361, 15.822262, 0), V(-10.381886, 15.727848, 0), V(-10.45556, 15.658131, 0), V(-10.493208, 15.622505, 0)], [4, 1, 1, 1, 1, 1, 1, 1, 1, 1, 1, 1, 1, 1, 1, 1, 4], [0, 1.102832843, 2.148778623, 3.152483981, 4.120095036, 5.074329331, 6.024295658, 6.962314458, 7.903862974, 8.858271066, 9.798321073, 10.7482874, 11.719235203, 12.727556838, 13.770644404, 14.860771026, 16], False, 3, [1, 1, 1, 1, 1, 1, 1, 1, 1, 1, 1, 1, 1, 1, 1, 1, 1, 1, 1], False), False)  # 20
sketch9.addGeometry(Part.LineSegment(V(-8.561372, 15.641841, 0), V(-5.829732, 12.910201, 0)), False)  # 21
sketch9.addGeometry(Part.BSplineCurve([V(-5.849068, 10.978365, 0), V(-5.814016, 11.015422, 0), V(-5.745446, 11.087916, 0), V(-5.652923, 11.201764, 0), V(-5.577228, 11.321055, 0), V(-5.514076, 11.441503, 0), V(-5.463446, 11.564231, 0), V(-5.428951, 11.690086, 0), V(-5.404755, 11.818217, 0), V(-5.399147, 11.948671, 0), V(-5.403608, 12.078806, 0), V(-5.422896, 12.20745, 0), V(-5.457157, 12.332534, 0), V(-5.502097, 12.455465, 0), V(-5.565574, 12.573055, 0), V(-5.638868, 12.689774, 0), V(-5.72775, 12.802967, 0), V(-5.795143, 12.873831, 0), V(-5.829732, 12.910201, 0)], [4, 1, 1, 1, 1, 1, 1, 1, 1, 1, 1, 1, 1, 1, 1, 1, 4], [0, 1.123174975, 2.197248608, 3.224495634, 4.228712617, 5.189549244, 6.14133267, 7.098088556, 8.054322242, 9.009946336, 9.962516613, 10.910882808, 11.862316313, 12.837685189, 13.847111187, 14.895057655, 16], False, 3, [1, 1, 1, 1, 1, 1, 1, 1, 1, 1, 1, 1, 1, 1, 1, 1, 1, 1, 1], False), False)  # 22
sketch9.addGeometry(Part.BSplineCurve([V(-7.608638, 12.737935, 0), V(-7.651257, 12.698711, 0), V(-7.733018, 12.623462, 0), V(-7.87328, 12.54168, 0), V(-8.018204, 12.487694, 0), V(-8.169348, 12.470503, 0), V(-8.321212, 12.486581, 0), V(-8.470204, 12.53716, 0), V(-8.614072, 12.624792, 0), V(-8.699242, 12.703456, 0), V(-8.744185, 12.744966, 0)], [4, 1, 1, 1, 1, 1, 1, 1, 4], [0, 1.078468522, 2.068978668, 3.010058665, 3.94623103, 4.881188457, 5.839340878, 6.859837199, 8], False, 3, [1, 1, 1, 1, 1, 1, 1, 1, 1, 1, 1], False), False)  # 23
sketch9.addGeometry(Part.BSplineCurve([V(-7.615669, 13.873482, 0), V(-7.574159, 13.828536, 0), V(-7.495495, 13.743361, 0), V(-7.407572, 13.599052, 0), V(-7.356993, 13.449375, 0), V(-7.343334, 13.297305, 0), V(-7.360761, 13.147351, 0), V(-7.411903, 13.002188, 0), V(-7.494328, 12.862377, 0), V(-7.56947, 12.780575, 0), V(-7.608638, 12.737935, 0)], [4, 1, 1, 1, 1, 1, 1, 1, 4], [0, 1.140905902, 2.162067331, 3.131221777, 4.065699465, 4.991612349, 5.929672876, 6.920828586, 8], False, 3, [1, 1, 1, 1, 1, 1, 1, 1, 1, 1, 1], False), False)  # 24
sketch9.addGeometry(Part.BSplineCurve([V(-8.733638, 13.862935, 0), V(-8.691525, 13.902009, 0), V(-8.610582, 13.977111, 0), V(-8.472769, 14.060969, 0), V(-8.330462, 14.115801, 0), V(-8.183503, 14.13691, 0), V(-8.034431, 14.127565, 0), V(-7.887689, 14.077088, 0), V(-7.744238, 13.992637, 0), V(-7.659967, 13.914537, 0), V(-7.615669, 13.873482, 0)], [4, 1, 1, 1, 1, 1, 1, 1, 4], [0, 1.084786176, 2.085020238, 3.032356643, 3.951234827, 4.873918182, 5.831130674, 6.85990271, 8], False, 3, [1, 1, 1, 1, 1, 1, 1, 1, 1, 1, 1], False), False)  # 25
sketch9.addGeometry(Part.BSplineCurve([V(-8.744185, 12.744966, 0), V(-8.785233, 12.78926, 0), V(-8.863322, 12.873521, 0), V(-8.947568, 13.016548, 0), V(-8.997754, 13.162534, 0), V(-9.010485, 13.311714, 0), V(-8.985995, 13.459048, 0), V(-8.931885, 13.60209, 0), V(-8.847754, 13.739872, 0), V(-8.772691, 13.82082, 0), V(-8.733638, 13.862935, 0)], [4, 1, 1, 1, 1, 1, 1, 1, 4], [0, 1.139675049, 2.168066075, 3.114402787, 4.037609751, 4.968766405, 5.91575196, 6.91561558, 8], False, 3, [1, 1, 1, 1, 1, 1, 1, 1, 1, 1, 1], False), False)  # 26
sketch9.addConstraint(Sketcher.Constraint("Block", 11))
sketch9.addConstraint(Sketcher.Constraint("Block", 12))
sketch9.addConstraint(Sketcher.Constraint("Block", 14))
sketch9.addConstraint(Sketcher.Constraint("Block", 15))
sketch9.addConstraint(Sketcher.Constraint("Block", 17))
sketch9.addConstraint(Sketcher.Constraint("Block", 19))
sketch9.addConstraint(Sketcher.Constraint("Block", 20))
sketch9.addConstraint(Sketcher.Constraint("Block", 22))
sketch9.addConstraint(Sketcher.Constraint("Block", 23))
sketch9.addConstraint(Sketcher.Constraint("Block", 24))
sketch9.addConstraint(Sketcher.Constraint("Block", 25))
sketch9.addConstraint(Sketcher.Constraint("Block", 26))
sketch9.addConstraint(Sketcher.Constraint("Coincident", 12, 1, 13, 1))
sketch9.addConstraint(Sketcher.Constraint("Coincident", 13, 2, 14, 2))
sketch9.addConstraint(Sketcher.Constraint("Coincident", 15, 1, 16, 1))
sketch9.addConstraint(Sketcher.Constraint("Coincident", 16, 2, 11, 2))
sketch9.addConstraint(Sketcher.Constraint("Coincident", 17, 1, 18, 1))
sketch9.addConstraint(Sketcher.Constraint("Coincident", 18, 2, 19, 2))
sketch9.addConstraint(Sketcher.Constraint("Coincident", 20, 1, 21, 1))
sketch9.addConstraint(Sketcher.Constraint("Coincident", 21, 2, 22, 2))
sketch9.addConstraint(Sketcher.Constraint("DistanceY", 0, 2, 3, 2, 3.633398))
sketch9.addConstraint(Sketcher.Constraint("DistanceX", 7, 2, 4, 2, 0.416602))
sketch9.addConstraint(Sketcher.Constraint("DistanceY", 2, 2, 13, 2, 8.575601))
sketch9.addConstraint(Sketcher.Constraint("Distance", 0, 1.329968))
sketch9.addConstraint(Sketcher.Constraint("Distance", 1, 5.657959))
sketch9.addConstraint(Sketcher.Constraint("Distance", 2, 1.329968))
sketch9.addConstraint(Sketcher.Constraint("Distance", 6, 2.53763))
sketch9.addConstraint(Sketcher.Constraint("Distance", 8, 2.873779))
sketch9.addConstraint(Sketcher.Constraint("DistanceX", 0, 2, -1, 1, 12.037559))
sketch9.addConstraint(Sketcher.Constraint("DistanceX", 1, 2, -1, 1, 8.036778))
sketch9.addConstraint(Sketcher.Constraint("DistanceX", 3, 2, -1, 1, 10.28502))
sketch9.addConstraint(Sketcher.Constraint("DistanceY", -1, 1, 3, 2, 6.767412))
sketch9.addConstraint(Sketcher.Constraint("DistanceX", 4, 2, -1, 1, 15.644591))
sketch9.addConstraint(Sketcher.Constraint("DistanceY", -1, 1, 7, 2, 7.140068))
sketch9.addConstraint(Sketcher.Constraint("DistanceX", 8, 2, -1, 1, 15.637559))
sketch9.addConstraint(Sketcher.Constraint("DistanceX", 9, 2, -1, 1, 11.35377))
sketch9.addConstraint(Sketcher.Constraint("DistanceY", -1, 1, 9, 2, 5.698662))
sketch9.addConstraint(Sketcher.Constraint("DistanceX", 10, 2, -1, 1, 12.977989))
sketch9.addConstraint(Sketcher.Constraint("DistanceY", 3, 2, 4, 2, 5.35957))
sketch9.addConstraint(Sketcher.Constraint("DistanceX", 6, 2, 5, 2, 0.360352))
sketch9.addConstraint(Sketcher.Constraint("DistanceY", 6, 2, 4, 2, 3.777539))
sketch9.addConstraint(Sketcher.Constraint("DistanceX", 6, 2, 2, 2, 8.293359))
pocket6 = body.newObject("PartDesign::Pocket", "Pocket005")
pocket6.Profile = sketch9
pocket6.Length = 0.8

doc.recompute()
